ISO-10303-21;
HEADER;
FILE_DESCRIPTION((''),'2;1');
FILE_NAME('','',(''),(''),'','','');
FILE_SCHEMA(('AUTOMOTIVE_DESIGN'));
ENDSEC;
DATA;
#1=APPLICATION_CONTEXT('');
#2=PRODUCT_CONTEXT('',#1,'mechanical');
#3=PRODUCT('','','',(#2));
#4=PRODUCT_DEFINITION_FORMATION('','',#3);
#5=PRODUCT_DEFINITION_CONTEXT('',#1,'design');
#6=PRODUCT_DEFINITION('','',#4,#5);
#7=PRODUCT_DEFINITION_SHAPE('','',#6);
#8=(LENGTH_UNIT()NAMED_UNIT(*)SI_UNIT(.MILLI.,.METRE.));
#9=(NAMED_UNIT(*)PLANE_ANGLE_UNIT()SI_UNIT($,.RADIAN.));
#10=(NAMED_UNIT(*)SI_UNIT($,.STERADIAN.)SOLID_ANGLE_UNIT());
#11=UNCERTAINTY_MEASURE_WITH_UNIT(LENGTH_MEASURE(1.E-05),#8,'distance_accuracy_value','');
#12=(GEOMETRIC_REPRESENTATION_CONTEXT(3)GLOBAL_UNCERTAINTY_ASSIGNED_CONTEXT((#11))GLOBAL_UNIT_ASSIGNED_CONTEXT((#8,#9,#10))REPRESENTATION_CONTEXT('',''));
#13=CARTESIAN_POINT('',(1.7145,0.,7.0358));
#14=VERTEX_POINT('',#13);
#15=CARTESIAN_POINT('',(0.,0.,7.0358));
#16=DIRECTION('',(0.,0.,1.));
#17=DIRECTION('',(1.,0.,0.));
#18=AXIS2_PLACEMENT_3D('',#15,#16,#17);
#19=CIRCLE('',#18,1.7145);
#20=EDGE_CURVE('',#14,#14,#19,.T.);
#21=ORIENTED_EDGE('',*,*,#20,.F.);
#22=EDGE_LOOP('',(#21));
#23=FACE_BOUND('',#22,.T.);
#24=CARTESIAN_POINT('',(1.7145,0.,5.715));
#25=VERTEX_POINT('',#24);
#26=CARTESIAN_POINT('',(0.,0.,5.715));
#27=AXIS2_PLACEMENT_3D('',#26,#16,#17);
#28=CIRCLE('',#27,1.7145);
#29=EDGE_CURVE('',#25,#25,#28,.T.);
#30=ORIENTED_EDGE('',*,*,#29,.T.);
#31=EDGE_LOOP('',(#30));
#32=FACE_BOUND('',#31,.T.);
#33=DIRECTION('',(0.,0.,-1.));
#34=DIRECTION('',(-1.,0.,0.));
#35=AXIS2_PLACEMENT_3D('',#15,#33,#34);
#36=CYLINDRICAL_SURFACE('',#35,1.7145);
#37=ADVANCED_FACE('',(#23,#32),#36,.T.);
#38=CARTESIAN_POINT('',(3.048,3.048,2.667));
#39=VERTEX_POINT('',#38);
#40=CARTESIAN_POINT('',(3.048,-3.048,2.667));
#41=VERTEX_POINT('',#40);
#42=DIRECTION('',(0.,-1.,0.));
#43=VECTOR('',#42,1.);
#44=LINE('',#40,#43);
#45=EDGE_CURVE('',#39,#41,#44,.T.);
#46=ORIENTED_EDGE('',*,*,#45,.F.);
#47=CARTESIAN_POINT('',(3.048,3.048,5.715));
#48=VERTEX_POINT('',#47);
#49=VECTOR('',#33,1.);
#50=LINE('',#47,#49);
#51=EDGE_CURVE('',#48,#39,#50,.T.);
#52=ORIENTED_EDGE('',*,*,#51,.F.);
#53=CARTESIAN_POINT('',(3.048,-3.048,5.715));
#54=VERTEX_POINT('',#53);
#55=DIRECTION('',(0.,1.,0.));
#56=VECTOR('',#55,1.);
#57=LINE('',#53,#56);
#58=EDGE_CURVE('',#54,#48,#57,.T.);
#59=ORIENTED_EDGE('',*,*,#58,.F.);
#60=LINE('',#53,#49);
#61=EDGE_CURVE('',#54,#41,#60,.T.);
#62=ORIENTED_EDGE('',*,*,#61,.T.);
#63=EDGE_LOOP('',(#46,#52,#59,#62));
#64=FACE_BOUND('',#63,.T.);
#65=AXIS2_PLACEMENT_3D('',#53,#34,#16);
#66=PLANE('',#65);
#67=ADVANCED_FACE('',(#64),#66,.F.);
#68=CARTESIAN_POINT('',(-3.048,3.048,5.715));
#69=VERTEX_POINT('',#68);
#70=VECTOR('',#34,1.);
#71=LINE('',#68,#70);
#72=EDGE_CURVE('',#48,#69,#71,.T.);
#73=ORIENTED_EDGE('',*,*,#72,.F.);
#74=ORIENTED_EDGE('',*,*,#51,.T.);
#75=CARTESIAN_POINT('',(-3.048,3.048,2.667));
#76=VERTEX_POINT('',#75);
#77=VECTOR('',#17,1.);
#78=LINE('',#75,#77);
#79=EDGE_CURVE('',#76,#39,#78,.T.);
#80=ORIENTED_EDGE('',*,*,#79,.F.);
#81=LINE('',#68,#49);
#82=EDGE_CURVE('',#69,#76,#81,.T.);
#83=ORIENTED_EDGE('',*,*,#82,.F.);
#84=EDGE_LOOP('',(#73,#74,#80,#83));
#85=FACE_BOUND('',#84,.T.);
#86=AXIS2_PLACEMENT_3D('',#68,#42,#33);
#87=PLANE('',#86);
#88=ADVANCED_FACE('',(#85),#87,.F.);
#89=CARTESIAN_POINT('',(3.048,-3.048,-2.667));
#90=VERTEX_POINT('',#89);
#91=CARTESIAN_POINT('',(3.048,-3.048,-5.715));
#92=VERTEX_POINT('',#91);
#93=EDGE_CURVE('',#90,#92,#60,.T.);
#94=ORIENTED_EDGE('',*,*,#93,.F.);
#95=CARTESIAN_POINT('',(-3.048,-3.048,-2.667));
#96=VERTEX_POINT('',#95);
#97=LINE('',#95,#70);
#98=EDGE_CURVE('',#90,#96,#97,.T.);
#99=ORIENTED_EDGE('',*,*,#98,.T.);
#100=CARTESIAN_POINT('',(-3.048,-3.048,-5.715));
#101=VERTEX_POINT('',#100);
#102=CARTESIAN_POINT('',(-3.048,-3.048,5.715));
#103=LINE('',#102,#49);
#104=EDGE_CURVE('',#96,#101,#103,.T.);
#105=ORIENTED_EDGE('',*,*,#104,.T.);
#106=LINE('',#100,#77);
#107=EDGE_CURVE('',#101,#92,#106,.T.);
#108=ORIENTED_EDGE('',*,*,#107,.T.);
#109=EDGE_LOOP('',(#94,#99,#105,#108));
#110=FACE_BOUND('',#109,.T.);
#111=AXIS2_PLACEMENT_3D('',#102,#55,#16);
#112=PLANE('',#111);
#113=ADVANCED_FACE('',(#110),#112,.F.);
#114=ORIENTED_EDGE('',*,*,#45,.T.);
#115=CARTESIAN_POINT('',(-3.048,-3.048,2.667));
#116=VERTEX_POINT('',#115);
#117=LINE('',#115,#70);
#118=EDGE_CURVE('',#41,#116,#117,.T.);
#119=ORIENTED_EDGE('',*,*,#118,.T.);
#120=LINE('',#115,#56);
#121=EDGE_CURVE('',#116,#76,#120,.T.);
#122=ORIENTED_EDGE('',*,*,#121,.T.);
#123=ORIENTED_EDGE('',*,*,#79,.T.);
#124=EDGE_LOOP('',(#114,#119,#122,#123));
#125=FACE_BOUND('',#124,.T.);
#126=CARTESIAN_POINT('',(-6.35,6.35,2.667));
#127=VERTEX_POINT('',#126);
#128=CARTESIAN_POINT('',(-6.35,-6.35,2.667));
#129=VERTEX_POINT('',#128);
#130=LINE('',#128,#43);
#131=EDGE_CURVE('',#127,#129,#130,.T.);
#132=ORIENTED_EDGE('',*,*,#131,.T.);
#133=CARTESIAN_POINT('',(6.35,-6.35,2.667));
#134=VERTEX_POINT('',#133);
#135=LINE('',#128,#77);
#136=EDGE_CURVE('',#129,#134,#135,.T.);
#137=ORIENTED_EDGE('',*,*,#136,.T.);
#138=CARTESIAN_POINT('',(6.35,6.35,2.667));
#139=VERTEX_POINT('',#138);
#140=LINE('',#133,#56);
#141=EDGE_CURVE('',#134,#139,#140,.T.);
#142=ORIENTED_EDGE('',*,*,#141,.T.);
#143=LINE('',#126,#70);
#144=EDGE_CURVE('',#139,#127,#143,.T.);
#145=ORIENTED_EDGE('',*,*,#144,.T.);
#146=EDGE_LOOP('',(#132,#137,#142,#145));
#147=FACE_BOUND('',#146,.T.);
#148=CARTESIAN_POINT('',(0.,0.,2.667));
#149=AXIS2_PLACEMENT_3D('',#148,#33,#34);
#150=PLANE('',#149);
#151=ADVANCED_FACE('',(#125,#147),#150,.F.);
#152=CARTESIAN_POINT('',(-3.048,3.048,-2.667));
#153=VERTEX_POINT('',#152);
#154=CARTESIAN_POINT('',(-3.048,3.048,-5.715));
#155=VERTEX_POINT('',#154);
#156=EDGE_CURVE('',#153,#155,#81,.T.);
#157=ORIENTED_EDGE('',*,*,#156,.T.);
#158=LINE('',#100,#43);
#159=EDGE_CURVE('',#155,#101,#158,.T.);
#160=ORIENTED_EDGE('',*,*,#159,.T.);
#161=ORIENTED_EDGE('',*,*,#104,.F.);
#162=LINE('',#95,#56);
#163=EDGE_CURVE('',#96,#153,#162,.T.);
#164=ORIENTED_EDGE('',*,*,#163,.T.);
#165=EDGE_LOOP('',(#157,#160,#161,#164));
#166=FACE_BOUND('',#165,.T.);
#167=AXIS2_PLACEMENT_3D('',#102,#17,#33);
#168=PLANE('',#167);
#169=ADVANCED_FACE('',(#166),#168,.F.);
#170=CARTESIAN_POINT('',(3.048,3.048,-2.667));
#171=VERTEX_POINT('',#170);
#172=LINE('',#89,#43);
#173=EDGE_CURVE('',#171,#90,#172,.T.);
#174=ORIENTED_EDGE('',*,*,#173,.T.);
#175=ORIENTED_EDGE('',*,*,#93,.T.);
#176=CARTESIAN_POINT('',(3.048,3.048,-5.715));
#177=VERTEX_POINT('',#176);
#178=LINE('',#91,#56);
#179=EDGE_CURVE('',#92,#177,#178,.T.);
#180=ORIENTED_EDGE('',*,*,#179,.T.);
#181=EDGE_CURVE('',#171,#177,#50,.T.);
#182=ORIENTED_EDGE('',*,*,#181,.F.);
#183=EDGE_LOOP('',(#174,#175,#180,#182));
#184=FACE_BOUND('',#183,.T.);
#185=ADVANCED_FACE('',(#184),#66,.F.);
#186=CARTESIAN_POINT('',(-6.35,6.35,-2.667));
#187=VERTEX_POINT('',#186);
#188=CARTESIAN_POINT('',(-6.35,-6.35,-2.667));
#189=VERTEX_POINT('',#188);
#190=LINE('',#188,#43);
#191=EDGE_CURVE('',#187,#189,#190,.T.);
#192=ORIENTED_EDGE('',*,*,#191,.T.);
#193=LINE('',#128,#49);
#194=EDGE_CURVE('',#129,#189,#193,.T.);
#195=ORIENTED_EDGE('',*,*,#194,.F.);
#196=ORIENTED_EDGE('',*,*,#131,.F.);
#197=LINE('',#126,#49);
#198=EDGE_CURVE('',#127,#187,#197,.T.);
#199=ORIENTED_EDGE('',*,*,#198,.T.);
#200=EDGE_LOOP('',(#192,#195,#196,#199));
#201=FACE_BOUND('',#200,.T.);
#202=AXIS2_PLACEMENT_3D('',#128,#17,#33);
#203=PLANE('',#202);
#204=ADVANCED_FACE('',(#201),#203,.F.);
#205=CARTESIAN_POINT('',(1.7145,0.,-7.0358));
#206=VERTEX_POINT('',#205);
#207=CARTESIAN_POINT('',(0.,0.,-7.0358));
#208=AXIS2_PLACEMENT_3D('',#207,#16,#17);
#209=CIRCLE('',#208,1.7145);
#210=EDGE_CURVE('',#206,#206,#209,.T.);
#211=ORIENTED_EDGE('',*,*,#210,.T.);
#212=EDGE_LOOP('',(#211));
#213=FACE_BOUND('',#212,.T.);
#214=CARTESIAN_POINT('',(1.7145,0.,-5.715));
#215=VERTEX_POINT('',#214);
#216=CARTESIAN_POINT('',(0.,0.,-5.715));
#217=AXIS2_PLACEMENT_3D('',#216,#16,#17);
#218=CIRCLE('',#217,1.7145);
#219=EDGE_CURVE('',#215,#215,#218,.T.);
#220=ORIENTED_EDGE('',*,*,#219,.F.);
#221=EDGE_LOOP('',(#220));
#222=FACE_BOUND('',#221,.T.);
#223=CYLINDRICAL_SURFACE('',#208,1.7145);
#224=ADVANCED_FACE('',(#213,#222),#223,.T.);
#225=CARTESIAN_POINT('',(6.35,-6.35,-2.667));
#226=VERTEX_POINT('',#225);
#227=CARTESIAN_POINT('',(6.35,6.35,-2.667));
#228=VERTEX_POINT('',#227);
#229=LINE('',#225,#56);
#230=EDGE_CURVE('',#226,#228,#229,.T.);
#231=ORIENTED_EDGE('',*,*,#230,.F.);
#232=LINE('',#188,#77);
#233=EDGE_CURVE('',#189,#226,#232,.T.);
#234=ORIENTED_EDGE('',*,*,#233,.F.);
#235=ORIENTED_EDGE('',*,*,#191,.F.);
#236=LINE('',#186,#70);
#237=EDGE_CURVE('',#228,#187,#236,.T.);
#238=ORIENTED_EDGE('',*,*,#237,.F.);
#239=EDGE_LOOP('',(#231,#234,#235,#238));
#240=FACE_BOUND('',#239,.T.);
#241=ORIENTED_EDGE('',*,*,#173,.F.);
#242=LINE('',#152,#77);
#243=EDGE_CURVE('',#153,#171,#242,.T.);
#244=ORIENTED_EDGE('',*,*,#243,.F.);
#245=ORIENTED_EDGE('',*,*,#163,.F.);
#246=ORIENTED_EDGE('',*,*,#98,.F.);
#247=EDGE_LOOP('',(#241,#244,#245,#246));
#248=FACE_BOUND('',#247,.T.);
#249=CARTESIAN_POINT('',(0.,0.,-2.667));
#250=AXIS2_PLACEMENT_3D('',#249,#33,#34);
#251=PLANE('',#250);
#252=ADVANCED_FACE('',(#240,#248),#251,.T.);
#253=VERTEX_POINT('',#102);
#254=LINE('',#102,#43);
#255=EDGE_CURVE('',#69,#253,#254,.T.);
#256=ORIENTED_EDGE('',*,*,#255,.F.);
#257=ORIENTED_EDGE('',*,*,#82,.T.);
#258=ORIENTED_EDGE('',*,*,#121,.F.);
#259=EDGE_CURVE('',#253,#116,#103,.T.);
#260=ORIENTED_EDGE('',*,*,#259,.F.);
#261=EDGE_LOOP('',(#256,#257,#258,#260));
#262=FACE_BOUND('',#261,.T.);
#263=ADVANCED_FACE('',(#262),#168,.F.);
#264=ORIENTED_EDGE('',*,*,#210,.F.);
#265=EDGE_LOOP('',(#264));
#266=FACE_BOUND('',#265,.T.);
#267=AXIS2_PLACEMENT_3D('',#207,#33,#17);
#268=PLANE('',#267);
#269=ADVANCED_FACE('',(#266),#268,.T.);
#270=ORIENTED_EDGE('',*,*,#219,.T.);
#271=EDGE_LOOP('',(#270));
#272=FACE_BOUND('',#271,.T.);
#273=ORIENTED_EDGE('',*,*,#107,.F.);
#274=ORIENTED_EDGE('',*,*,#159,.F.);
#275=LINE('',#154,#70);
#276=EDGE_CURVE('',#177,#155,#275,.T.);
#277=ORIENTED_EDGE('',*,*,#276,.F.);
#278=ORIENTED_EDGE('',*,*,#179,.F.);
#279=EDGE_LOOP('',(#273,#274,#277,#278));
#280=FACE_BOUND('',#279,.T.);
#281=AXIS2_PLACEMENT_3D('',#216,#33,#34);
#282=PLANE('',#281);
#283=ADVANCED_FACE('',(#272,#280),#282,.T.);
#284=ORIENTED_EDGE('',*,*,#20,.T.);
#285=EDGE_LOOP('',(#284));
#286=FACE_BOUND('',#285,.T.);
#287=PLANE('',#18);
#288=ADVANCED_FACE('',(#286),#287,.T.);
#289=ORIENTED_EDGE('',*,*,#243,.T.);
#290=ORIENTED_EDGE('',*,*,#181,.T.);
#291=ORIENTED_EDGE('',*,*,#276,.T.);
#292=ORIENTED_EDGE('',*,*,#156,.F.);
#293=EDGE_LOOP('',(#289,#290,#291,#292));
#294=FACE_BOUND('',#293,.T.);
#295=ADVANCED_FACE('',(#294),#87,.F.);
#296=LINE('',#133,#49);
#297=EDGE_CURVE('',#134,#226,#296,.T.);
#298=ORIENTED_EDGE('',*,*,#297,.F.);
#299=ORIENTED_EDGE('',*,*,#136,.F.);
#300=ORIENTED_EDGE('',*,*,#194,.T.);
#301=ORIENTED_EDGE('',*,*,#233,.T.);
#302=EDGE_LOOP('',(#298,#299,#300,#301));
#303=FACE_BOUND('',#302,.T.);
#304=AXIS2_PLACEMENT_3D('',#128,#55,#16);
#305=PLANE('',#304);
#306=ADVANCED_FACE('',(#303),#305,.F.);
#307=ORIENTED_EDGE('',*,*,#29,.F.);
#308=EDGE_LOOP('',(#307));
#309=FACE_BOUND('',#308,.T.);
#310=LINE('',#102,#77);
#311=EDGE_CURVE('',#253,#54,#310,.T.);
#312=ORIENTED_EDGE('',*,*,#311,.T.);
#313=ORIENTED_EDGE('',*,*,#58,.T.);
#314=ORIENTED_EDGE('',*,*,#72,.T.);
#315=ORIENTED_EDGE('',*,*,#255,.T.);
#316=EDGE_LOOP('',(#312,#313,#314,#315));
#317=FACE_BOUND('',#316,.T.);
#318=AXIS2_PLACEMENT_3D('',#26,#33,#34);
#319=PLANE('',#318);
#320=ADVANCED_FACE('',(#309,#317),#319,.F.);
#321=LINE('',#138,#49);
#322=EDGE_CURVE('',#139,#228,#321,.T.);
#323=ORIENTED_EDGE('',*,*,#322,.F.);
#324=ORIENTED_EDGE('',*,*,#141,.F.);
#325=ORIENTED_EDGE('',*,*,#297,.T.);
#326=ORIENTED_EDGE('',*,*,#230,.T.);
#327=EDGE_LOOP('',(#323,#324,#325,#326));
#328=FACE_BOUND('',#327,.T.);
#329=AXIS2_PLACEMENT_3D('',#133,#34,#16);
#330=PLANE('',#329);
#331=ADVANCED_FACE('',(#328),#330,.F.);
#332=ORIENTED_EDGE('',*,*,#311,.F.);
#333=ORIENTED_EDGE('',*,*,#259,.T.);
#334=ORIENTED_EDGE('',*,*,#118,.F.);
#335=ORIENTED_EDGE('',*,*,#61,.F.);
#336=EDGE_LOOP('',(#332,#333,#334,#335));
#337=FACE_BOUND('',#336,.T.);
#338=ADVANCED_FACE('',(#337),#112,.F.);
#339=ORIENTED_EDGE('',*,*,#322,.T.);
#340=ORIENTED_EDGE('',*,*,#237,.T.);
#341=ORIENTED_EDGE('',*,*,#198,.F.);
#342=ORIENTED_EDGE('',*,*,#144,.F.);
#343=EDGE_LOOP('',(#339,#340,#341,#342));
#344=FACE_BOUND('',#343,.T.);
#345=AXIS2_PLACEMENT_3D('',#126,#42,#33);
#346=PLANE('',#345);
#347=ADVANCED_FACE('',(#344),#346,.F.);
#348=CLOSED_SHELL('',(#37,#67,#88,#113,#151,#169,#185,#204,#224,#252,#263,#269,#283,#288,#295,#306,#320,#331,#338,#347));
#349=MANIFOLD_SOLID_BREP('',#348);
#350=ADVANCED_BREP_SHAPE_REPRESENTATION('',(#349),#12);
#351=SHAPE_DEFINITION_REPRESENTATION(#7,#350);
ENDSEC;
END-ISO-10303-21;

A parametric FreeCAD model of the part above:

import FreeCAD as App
import Part
import Sketcher
from FreeCAD import Vector
Q = App.Units.Quantity

doc = App.newDocument("Part")
body = doc.addObject("PartDesign::Body", "Body")

# Sketch on XY plane
sketch1 = body.newObject("Sketcher::SketchObject", "Sketch")
sketch1.AttachmentSupport = (doc.getObject("XY_Plane"), [""])
sketch1.MapMode = "FlatFace"
sketch1.addGeometry([
    Part.LineSegment(Vector(-3.048, 3.048, 0), Vector(-3.048, -3.048, 0)),
    Part.LineSegment(Vector(-3.048, -3.048, 0), Vector(3.048, -3.048, 0)),
    Part.LineSegment(Vector(3.048, -3.048, 0), Vector(3.048, 3.048, 0)),
    Part.LineSegment(Vector(3.048, 3.048, 0), Vector(-3.048, 3.048, 0)),
], False)
sketch1.addConstraint([
    Sketcher.Constraint("Coincident", 0, 2, 1, 1),
    Sketcher.Constraint("Coincident", 1, 2, 2, 1),
    Sketcher.Constraint("Coincident", 2, 2, 3, 1),
    Sketcher.Constraint("Coincident", 3, 2, 0, 1),
    Sketcher.Constraint("Vertical", 0),
    Sketcher.Constraint("Horizontal", 1),
    Sketcher.Constraint("Vertical", 2),
    Sketcher.Constraint("Horizontal", 3),
    Sketcher.Constraint("Symmetric", 0, 2, 2, 2, -1, 1),
    Sketcher.Constraint("Equal", 3, 0),
    Sketcher.Constraint("DistanceX", 1, 1, 1, 2, Q("0.24 in")),
])
pad1 = body.newObject("PartDesign::Pad", "Pad")
pad1.Profile = sketch1
pad1.Length = Q("0.45 in")
pad1.Midplane = True

# Sketch on XY plane
sketch2 = body.newObject("Sketcher::SketchObject", "Sketch001")
sketch2.AttachmentSupport = (doc.getObject("XY_Plane"), [""])
sketch2.MapMode = "FlatFace"
sketch2.AttachmentOffset = App.Placement(Vector(0, 0, 0.225 * 25.4), App.Rotation())
sketch2.addGeometry(Part.Circle(Vector(0, 0, 0), Vector(0, 0, 1), 1.7145), False)
sketch2.addConstraint([
    Sketcher.Constraint("Coincident", 0, 3, -1, 1),
    Sketcher.Constraint("Diameter", 0, Q("0.135 in")),
])
pad2 = body.newObject("PartDesign::Pad", "Pad001")
pad2.Profile = sketch2
pad2.Length = Q("0.052 in")
doc.recompute()

mirrored = body.newObject("PartDesign::Mirrored", "Mirrored")
mirrored.Originals = [pad2]
mirrored.MirrorPlane = (doc.getObject("XY_Plane"), [""])
body.Tip = mirrored

# Sketch on XY plane
sketch3 = body.newObject("Sketcher::SketchObject", "Sketch002")
sketch3.AttachmentSupport = (doc.getObject("XY_Plane"), [""])
sketch3.MapMode = "FlatFace"
sketch3.addGeometry([
    Part.LineSegment(Vector(-6.35, 6.35, 0), Vector(-6.35, -6.35, 0)),
    Part.LineSegment(Vector(-6.35, -6.35, 0), Vector(6.35, -6.35, 0)),
    Part.LineSegment(Vector(6.35, -6.35, 0), Vector(6.35, 6.35, 0)),
    Part.LineSegment(Vector(6.35, 6.35, 0), Vector(-6.35, 6.35, 0)),
], False)
sketch3.addConstraint([
    Sketcher.Constraint("Coincident", 0, 2, 1, 1),
    Sketcher.Constraint("Coincident", 1, 2, 2, 1),
    Sketcher.Constraint("Coincident", 2, 2, 3, 1),
    Sketcher.Constraint("Coincident", 3, 2, 0, 1),
    Sketcher.Constraint("Vertical", 0),
    Sketcher.Constraint("Horizontal", 1),
    Sketcher.Constraint("Vertical", 2),
    Sketcher.Constraint("Horizontal", 3),
    Sketcher.Constraint("Symmetric", 0, 2, 2, 2, -1, 1),
    Sketcher.Constraint("Equal", 3, 0),
    Sketcher.Constraint("DistanceX", 1, 1, 1, 2, Q("0.5 in")),
])
pad3 = body.newObject("PartDesign::Pad", "Pad002")
pad3.Profile = sketch3
pad3.Length = Q("0.21 in")
pad3.Midplane = True

doc.recompute()
